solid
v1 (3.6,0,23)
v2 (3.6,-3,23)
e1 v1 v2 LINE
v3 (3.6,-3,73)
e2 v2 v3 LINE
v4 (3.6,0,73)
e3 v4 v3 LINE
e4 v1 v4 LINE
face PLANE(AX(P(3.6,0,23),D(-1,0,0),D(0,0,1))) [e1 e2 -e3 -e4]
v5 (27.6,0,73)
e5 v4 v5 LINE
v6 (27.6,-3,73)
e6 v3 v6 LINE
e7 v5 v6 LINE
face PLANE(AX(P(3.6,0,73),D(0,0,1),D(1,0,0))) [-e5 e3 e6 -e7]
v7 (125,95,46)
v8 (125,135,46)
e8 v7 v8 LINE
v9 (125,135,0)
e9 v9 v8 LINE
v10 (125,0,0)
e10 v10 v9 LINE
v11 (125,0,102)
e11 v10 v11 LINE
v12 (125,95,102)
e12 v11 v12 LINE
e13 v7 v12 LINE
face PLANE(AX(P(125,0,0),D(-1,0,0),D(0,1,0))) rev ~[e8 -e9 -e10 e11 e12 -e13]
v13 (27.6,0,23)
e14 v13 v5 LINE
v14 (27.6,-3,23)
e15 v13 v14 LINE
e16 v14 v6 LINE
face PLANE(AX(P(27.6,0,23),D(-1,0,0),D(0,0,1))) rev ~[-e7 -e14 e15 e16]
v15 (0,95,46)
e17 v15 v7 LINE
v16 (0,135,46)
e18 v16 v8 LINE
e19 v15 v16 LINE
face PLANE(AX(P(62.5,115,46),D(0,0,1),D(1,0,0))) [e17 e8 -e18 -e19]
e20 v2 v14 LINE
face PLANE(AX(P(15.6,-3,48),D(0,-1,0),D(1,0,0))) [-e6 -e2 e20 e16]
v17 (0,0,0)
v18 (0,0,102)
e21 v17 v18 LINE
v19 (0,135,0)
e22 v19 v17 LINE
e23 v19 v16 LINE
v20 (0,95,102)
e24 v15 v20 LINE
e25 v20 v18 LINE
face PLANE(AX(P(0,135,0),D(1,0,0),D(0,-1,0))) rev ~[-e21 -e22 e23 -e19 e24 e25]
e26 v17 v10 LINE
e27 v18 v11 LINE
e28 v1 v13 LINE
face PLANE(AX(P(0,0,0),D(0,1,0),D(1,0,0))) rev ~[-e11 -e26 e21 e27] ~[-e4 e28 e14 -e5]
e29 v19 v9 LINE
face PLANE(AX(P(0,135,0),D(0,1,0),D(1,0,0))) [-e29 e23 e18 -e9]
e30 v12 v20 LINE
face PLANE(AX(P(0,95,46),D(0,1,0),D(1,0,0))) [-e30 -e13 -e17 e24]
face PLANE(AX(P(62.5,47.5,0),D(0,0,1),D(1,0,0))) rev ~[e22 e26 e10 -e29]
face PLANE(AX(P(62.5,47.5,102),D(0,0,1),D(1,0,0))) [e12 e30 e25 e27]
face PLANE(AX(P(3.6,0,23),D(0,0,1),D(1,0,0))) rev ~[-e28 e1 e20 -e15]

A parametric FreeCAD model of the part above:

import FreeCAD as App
import Part
import Sketcher
from FreeCAD import Vector

doc = App.newDocument("Part")
params = doc.addObject("Spreadsheet::Sheet", "Params")
for row, (alias, value) in enumerate([
    ("sketch1_width", "125 mm"),
    ("sketch1_height", "135 mm"),
    ("pad1_length", "102 mm"),
    ("sketch2_width", "125 mm"),
    ("sketch2_height", "40 mm"),
    ("pocket1_length", "86.07192 mm"),
    ("sketch3_width", "24 mm"),
    ("sketch3_height", "50 mm"),
    ("pad2_length", "3 mm"),
], start=1):
    params.set(f"A{row}", alias)
    params.set(f"B{row}", "=" + value)
    params.setAlias(f"B{row}", alias)

body = doc.addObject("PartDesign::Body", "Body")

sketch1 = body.newObject("Sketcher::SketchObject", "Sketch")
sketch1.AttachmentSupport = (doc.getObject("XY_Plane"), [""])
sketch1.MapMode = "FlatFace"
sketch1.addGeometry([
    Part.LineSegment(Vector(0, 0, 0), Vector(125, 0, 0)),
    Part.LineSegment(Vector(125, 0, 0), Vector(125, 135, 0)),
    Part.LineSegment(Vector(125, 135, 0), Vector(0, 135, 0)),
    Part.LineSegment(Vector(0, 135, 0), Vector(0, 0, 0)),
], False)
sketch1.addConstraint([
    Sketcher.Constraint("Coincident", 0, 2, 1, 1),
    Sketcher.Constraint("Coincident", 1, 2, 2, 1),
    Sketcher.Constraint("Coincident", 2, 2, 3, 1),
    Sketcher.Constraint("Coincident", 3, 2, 0, 1),
    Sketcher.Constraint("Horizontal", 0),
    Sketcher.Constraint("Vertical", 1),
    Sketcher.Constraint("Horizontal", 2),
    Sketcher.Constraint("Vertical", 3),
    Sketcher.Constraint("Coincident", 3, 2, -1, 1),
    Sketcher.Constraint("DistanceX", 0, 1, 0, 2, 125.0),
    Sketcher.Constraint("DistanceY", 1, 1, 1, 2, 135.0),
])
sketch1.setExpression("Constraints[9]", "Params.sketch1_width")
sketch1.setExpression("Constraints[10]", "Params.sketch1_height")
pad1 = body.newObject("PartDesign::Pad", "Pad")
pad1.Profile = sketch1
pad1.setExpression("Length", "Params.pad1_length")

sketch2 = body.newObject("Sketcher::SketchObject", "Sketch001")
sketch2.AttachmentSupport = (doc.getObject("XY_Plane"), [""])
sketch2.MapMode = "FlatFace"
sketch2.AttachmentOffset = App.Placement(Vector(0, 0, 46), App.Rotation())
sketch2.addGeometry([
    Part.LineSegment(Vector(0, 135, 0), Vector(0, 95, 0)),
    Part.LineSegment(Vector(0, 95, 0), Vector(125, 95, 0)),
    Part.LineSegment(Vector(125, 95, 0), Vector(125, 135, 0)),
    Part.LineSegment(Vector(125, 135, 0), Vector(0, 135, 0)),
], False)
sketch2.addConstraint([
    Sketcher.Constraint("Coincident", 0, 2, 1, 1),
    Sketcher.Constraint("Coincident", 1, 2, 2, 1),
    Sketcher.Constraint("Coincident", 2, 2, 3, 1),
    Sketcher.Constraint("Coincident", 3, 2, 0, 1),
    Sketcher.Constraint("Vertical", 0),
    Sketcher.Constraint("Horizontal", 1),
    Sketcher.Constraint("Vertical", 2),
    Sketcher.Constraint("Horizontal", 3),
    Sketcher.Constraint("PointOnObject", 0, 2, -2),
    Sketcher.Constraint("DistanceX", 1, 1, 1, 2, 125.0),
    Sketcher.Constraint("DistanceY", 0, 2, 0, 1, 40.0),
    Sketcher.Constraint("DistanceY", -1, 1, 0, 2, 95.0),
])
sketch2.setExpression("Constraints[9]", "Params.sketch2_width")
sketch2.setExpression("Constraints[10]", "Params.sketch2_height")
pocket1 = body.newObject("PartDesign::Pocket", "Pocket")
pocket1.Profile = sketch2
pocket1.setExpression("Length", "Params.pocket1_length")
pocket1.Reversed = True

sketch3 = body.newObject("Sketcher::SketchObject", "Sketch002")
sketch3.AttachmentSupport = (doc.getObject("XZ_Plane"), [""])
sketch3.MapMode = "FlatFace"
sketch3.addGeometry([
    Part.LineSegment(Vector(4, 73, 0), Vector(4, 23, 0)),
    Part.LineSegment(Vector(4, 23, 0), Vector(28, 23, 0)),
    Part.LineSegment(Vector(28, 23, 0), Vector(28, 73, 0)),
    Part.LineSegment(Vector(28, 73, 0), Vector(4, 73, 0)),
], False)
sketch3.addConstraint([
    Sketcher.Constraint("Coincident", 0, 2, 1, 1),
    Sketcher.Constraint("Coincident", 1, 2, 2, 1),
    Sketcher.Constraint("Coincident", 2, 2, 3, 1),
    Sketcher.Constraint("Coincident", 3, 2, 0, 1),
    Sketcher.Constraint("Vertical", 0),
    Sketcher.Constraint("Horizontal", 1),
    Sketcher.Constraint("Vertical", 2),
    Sketcher.Constraint("Horizontal", 3),
    Sketcher.Constraint("DistanceX", 1, 1, 1, 2, 24.0),
    Sketcher.Constraint("DistanceY", 0, 2, 0, 1, 50.0),
    Sketcher.Constraint("DistanceY", -1, 1, 0, 2, 23.0),
    Sketcher.Constraint("DistanceX", -1, 1, 0, 2, 3.6),
])
sketch3.setExpression("Constraints[8]", "Params.sketch3_width")
sketch3.setExpression("Constraints[9]", "Params.sketch3_height")
pad2 = body.newObject("PartDesign::Pad", "Pad001")
pad2.Profile = sketch3
pad2.setExpression("Length", "Params.pad2_length")

doc.recompute()
